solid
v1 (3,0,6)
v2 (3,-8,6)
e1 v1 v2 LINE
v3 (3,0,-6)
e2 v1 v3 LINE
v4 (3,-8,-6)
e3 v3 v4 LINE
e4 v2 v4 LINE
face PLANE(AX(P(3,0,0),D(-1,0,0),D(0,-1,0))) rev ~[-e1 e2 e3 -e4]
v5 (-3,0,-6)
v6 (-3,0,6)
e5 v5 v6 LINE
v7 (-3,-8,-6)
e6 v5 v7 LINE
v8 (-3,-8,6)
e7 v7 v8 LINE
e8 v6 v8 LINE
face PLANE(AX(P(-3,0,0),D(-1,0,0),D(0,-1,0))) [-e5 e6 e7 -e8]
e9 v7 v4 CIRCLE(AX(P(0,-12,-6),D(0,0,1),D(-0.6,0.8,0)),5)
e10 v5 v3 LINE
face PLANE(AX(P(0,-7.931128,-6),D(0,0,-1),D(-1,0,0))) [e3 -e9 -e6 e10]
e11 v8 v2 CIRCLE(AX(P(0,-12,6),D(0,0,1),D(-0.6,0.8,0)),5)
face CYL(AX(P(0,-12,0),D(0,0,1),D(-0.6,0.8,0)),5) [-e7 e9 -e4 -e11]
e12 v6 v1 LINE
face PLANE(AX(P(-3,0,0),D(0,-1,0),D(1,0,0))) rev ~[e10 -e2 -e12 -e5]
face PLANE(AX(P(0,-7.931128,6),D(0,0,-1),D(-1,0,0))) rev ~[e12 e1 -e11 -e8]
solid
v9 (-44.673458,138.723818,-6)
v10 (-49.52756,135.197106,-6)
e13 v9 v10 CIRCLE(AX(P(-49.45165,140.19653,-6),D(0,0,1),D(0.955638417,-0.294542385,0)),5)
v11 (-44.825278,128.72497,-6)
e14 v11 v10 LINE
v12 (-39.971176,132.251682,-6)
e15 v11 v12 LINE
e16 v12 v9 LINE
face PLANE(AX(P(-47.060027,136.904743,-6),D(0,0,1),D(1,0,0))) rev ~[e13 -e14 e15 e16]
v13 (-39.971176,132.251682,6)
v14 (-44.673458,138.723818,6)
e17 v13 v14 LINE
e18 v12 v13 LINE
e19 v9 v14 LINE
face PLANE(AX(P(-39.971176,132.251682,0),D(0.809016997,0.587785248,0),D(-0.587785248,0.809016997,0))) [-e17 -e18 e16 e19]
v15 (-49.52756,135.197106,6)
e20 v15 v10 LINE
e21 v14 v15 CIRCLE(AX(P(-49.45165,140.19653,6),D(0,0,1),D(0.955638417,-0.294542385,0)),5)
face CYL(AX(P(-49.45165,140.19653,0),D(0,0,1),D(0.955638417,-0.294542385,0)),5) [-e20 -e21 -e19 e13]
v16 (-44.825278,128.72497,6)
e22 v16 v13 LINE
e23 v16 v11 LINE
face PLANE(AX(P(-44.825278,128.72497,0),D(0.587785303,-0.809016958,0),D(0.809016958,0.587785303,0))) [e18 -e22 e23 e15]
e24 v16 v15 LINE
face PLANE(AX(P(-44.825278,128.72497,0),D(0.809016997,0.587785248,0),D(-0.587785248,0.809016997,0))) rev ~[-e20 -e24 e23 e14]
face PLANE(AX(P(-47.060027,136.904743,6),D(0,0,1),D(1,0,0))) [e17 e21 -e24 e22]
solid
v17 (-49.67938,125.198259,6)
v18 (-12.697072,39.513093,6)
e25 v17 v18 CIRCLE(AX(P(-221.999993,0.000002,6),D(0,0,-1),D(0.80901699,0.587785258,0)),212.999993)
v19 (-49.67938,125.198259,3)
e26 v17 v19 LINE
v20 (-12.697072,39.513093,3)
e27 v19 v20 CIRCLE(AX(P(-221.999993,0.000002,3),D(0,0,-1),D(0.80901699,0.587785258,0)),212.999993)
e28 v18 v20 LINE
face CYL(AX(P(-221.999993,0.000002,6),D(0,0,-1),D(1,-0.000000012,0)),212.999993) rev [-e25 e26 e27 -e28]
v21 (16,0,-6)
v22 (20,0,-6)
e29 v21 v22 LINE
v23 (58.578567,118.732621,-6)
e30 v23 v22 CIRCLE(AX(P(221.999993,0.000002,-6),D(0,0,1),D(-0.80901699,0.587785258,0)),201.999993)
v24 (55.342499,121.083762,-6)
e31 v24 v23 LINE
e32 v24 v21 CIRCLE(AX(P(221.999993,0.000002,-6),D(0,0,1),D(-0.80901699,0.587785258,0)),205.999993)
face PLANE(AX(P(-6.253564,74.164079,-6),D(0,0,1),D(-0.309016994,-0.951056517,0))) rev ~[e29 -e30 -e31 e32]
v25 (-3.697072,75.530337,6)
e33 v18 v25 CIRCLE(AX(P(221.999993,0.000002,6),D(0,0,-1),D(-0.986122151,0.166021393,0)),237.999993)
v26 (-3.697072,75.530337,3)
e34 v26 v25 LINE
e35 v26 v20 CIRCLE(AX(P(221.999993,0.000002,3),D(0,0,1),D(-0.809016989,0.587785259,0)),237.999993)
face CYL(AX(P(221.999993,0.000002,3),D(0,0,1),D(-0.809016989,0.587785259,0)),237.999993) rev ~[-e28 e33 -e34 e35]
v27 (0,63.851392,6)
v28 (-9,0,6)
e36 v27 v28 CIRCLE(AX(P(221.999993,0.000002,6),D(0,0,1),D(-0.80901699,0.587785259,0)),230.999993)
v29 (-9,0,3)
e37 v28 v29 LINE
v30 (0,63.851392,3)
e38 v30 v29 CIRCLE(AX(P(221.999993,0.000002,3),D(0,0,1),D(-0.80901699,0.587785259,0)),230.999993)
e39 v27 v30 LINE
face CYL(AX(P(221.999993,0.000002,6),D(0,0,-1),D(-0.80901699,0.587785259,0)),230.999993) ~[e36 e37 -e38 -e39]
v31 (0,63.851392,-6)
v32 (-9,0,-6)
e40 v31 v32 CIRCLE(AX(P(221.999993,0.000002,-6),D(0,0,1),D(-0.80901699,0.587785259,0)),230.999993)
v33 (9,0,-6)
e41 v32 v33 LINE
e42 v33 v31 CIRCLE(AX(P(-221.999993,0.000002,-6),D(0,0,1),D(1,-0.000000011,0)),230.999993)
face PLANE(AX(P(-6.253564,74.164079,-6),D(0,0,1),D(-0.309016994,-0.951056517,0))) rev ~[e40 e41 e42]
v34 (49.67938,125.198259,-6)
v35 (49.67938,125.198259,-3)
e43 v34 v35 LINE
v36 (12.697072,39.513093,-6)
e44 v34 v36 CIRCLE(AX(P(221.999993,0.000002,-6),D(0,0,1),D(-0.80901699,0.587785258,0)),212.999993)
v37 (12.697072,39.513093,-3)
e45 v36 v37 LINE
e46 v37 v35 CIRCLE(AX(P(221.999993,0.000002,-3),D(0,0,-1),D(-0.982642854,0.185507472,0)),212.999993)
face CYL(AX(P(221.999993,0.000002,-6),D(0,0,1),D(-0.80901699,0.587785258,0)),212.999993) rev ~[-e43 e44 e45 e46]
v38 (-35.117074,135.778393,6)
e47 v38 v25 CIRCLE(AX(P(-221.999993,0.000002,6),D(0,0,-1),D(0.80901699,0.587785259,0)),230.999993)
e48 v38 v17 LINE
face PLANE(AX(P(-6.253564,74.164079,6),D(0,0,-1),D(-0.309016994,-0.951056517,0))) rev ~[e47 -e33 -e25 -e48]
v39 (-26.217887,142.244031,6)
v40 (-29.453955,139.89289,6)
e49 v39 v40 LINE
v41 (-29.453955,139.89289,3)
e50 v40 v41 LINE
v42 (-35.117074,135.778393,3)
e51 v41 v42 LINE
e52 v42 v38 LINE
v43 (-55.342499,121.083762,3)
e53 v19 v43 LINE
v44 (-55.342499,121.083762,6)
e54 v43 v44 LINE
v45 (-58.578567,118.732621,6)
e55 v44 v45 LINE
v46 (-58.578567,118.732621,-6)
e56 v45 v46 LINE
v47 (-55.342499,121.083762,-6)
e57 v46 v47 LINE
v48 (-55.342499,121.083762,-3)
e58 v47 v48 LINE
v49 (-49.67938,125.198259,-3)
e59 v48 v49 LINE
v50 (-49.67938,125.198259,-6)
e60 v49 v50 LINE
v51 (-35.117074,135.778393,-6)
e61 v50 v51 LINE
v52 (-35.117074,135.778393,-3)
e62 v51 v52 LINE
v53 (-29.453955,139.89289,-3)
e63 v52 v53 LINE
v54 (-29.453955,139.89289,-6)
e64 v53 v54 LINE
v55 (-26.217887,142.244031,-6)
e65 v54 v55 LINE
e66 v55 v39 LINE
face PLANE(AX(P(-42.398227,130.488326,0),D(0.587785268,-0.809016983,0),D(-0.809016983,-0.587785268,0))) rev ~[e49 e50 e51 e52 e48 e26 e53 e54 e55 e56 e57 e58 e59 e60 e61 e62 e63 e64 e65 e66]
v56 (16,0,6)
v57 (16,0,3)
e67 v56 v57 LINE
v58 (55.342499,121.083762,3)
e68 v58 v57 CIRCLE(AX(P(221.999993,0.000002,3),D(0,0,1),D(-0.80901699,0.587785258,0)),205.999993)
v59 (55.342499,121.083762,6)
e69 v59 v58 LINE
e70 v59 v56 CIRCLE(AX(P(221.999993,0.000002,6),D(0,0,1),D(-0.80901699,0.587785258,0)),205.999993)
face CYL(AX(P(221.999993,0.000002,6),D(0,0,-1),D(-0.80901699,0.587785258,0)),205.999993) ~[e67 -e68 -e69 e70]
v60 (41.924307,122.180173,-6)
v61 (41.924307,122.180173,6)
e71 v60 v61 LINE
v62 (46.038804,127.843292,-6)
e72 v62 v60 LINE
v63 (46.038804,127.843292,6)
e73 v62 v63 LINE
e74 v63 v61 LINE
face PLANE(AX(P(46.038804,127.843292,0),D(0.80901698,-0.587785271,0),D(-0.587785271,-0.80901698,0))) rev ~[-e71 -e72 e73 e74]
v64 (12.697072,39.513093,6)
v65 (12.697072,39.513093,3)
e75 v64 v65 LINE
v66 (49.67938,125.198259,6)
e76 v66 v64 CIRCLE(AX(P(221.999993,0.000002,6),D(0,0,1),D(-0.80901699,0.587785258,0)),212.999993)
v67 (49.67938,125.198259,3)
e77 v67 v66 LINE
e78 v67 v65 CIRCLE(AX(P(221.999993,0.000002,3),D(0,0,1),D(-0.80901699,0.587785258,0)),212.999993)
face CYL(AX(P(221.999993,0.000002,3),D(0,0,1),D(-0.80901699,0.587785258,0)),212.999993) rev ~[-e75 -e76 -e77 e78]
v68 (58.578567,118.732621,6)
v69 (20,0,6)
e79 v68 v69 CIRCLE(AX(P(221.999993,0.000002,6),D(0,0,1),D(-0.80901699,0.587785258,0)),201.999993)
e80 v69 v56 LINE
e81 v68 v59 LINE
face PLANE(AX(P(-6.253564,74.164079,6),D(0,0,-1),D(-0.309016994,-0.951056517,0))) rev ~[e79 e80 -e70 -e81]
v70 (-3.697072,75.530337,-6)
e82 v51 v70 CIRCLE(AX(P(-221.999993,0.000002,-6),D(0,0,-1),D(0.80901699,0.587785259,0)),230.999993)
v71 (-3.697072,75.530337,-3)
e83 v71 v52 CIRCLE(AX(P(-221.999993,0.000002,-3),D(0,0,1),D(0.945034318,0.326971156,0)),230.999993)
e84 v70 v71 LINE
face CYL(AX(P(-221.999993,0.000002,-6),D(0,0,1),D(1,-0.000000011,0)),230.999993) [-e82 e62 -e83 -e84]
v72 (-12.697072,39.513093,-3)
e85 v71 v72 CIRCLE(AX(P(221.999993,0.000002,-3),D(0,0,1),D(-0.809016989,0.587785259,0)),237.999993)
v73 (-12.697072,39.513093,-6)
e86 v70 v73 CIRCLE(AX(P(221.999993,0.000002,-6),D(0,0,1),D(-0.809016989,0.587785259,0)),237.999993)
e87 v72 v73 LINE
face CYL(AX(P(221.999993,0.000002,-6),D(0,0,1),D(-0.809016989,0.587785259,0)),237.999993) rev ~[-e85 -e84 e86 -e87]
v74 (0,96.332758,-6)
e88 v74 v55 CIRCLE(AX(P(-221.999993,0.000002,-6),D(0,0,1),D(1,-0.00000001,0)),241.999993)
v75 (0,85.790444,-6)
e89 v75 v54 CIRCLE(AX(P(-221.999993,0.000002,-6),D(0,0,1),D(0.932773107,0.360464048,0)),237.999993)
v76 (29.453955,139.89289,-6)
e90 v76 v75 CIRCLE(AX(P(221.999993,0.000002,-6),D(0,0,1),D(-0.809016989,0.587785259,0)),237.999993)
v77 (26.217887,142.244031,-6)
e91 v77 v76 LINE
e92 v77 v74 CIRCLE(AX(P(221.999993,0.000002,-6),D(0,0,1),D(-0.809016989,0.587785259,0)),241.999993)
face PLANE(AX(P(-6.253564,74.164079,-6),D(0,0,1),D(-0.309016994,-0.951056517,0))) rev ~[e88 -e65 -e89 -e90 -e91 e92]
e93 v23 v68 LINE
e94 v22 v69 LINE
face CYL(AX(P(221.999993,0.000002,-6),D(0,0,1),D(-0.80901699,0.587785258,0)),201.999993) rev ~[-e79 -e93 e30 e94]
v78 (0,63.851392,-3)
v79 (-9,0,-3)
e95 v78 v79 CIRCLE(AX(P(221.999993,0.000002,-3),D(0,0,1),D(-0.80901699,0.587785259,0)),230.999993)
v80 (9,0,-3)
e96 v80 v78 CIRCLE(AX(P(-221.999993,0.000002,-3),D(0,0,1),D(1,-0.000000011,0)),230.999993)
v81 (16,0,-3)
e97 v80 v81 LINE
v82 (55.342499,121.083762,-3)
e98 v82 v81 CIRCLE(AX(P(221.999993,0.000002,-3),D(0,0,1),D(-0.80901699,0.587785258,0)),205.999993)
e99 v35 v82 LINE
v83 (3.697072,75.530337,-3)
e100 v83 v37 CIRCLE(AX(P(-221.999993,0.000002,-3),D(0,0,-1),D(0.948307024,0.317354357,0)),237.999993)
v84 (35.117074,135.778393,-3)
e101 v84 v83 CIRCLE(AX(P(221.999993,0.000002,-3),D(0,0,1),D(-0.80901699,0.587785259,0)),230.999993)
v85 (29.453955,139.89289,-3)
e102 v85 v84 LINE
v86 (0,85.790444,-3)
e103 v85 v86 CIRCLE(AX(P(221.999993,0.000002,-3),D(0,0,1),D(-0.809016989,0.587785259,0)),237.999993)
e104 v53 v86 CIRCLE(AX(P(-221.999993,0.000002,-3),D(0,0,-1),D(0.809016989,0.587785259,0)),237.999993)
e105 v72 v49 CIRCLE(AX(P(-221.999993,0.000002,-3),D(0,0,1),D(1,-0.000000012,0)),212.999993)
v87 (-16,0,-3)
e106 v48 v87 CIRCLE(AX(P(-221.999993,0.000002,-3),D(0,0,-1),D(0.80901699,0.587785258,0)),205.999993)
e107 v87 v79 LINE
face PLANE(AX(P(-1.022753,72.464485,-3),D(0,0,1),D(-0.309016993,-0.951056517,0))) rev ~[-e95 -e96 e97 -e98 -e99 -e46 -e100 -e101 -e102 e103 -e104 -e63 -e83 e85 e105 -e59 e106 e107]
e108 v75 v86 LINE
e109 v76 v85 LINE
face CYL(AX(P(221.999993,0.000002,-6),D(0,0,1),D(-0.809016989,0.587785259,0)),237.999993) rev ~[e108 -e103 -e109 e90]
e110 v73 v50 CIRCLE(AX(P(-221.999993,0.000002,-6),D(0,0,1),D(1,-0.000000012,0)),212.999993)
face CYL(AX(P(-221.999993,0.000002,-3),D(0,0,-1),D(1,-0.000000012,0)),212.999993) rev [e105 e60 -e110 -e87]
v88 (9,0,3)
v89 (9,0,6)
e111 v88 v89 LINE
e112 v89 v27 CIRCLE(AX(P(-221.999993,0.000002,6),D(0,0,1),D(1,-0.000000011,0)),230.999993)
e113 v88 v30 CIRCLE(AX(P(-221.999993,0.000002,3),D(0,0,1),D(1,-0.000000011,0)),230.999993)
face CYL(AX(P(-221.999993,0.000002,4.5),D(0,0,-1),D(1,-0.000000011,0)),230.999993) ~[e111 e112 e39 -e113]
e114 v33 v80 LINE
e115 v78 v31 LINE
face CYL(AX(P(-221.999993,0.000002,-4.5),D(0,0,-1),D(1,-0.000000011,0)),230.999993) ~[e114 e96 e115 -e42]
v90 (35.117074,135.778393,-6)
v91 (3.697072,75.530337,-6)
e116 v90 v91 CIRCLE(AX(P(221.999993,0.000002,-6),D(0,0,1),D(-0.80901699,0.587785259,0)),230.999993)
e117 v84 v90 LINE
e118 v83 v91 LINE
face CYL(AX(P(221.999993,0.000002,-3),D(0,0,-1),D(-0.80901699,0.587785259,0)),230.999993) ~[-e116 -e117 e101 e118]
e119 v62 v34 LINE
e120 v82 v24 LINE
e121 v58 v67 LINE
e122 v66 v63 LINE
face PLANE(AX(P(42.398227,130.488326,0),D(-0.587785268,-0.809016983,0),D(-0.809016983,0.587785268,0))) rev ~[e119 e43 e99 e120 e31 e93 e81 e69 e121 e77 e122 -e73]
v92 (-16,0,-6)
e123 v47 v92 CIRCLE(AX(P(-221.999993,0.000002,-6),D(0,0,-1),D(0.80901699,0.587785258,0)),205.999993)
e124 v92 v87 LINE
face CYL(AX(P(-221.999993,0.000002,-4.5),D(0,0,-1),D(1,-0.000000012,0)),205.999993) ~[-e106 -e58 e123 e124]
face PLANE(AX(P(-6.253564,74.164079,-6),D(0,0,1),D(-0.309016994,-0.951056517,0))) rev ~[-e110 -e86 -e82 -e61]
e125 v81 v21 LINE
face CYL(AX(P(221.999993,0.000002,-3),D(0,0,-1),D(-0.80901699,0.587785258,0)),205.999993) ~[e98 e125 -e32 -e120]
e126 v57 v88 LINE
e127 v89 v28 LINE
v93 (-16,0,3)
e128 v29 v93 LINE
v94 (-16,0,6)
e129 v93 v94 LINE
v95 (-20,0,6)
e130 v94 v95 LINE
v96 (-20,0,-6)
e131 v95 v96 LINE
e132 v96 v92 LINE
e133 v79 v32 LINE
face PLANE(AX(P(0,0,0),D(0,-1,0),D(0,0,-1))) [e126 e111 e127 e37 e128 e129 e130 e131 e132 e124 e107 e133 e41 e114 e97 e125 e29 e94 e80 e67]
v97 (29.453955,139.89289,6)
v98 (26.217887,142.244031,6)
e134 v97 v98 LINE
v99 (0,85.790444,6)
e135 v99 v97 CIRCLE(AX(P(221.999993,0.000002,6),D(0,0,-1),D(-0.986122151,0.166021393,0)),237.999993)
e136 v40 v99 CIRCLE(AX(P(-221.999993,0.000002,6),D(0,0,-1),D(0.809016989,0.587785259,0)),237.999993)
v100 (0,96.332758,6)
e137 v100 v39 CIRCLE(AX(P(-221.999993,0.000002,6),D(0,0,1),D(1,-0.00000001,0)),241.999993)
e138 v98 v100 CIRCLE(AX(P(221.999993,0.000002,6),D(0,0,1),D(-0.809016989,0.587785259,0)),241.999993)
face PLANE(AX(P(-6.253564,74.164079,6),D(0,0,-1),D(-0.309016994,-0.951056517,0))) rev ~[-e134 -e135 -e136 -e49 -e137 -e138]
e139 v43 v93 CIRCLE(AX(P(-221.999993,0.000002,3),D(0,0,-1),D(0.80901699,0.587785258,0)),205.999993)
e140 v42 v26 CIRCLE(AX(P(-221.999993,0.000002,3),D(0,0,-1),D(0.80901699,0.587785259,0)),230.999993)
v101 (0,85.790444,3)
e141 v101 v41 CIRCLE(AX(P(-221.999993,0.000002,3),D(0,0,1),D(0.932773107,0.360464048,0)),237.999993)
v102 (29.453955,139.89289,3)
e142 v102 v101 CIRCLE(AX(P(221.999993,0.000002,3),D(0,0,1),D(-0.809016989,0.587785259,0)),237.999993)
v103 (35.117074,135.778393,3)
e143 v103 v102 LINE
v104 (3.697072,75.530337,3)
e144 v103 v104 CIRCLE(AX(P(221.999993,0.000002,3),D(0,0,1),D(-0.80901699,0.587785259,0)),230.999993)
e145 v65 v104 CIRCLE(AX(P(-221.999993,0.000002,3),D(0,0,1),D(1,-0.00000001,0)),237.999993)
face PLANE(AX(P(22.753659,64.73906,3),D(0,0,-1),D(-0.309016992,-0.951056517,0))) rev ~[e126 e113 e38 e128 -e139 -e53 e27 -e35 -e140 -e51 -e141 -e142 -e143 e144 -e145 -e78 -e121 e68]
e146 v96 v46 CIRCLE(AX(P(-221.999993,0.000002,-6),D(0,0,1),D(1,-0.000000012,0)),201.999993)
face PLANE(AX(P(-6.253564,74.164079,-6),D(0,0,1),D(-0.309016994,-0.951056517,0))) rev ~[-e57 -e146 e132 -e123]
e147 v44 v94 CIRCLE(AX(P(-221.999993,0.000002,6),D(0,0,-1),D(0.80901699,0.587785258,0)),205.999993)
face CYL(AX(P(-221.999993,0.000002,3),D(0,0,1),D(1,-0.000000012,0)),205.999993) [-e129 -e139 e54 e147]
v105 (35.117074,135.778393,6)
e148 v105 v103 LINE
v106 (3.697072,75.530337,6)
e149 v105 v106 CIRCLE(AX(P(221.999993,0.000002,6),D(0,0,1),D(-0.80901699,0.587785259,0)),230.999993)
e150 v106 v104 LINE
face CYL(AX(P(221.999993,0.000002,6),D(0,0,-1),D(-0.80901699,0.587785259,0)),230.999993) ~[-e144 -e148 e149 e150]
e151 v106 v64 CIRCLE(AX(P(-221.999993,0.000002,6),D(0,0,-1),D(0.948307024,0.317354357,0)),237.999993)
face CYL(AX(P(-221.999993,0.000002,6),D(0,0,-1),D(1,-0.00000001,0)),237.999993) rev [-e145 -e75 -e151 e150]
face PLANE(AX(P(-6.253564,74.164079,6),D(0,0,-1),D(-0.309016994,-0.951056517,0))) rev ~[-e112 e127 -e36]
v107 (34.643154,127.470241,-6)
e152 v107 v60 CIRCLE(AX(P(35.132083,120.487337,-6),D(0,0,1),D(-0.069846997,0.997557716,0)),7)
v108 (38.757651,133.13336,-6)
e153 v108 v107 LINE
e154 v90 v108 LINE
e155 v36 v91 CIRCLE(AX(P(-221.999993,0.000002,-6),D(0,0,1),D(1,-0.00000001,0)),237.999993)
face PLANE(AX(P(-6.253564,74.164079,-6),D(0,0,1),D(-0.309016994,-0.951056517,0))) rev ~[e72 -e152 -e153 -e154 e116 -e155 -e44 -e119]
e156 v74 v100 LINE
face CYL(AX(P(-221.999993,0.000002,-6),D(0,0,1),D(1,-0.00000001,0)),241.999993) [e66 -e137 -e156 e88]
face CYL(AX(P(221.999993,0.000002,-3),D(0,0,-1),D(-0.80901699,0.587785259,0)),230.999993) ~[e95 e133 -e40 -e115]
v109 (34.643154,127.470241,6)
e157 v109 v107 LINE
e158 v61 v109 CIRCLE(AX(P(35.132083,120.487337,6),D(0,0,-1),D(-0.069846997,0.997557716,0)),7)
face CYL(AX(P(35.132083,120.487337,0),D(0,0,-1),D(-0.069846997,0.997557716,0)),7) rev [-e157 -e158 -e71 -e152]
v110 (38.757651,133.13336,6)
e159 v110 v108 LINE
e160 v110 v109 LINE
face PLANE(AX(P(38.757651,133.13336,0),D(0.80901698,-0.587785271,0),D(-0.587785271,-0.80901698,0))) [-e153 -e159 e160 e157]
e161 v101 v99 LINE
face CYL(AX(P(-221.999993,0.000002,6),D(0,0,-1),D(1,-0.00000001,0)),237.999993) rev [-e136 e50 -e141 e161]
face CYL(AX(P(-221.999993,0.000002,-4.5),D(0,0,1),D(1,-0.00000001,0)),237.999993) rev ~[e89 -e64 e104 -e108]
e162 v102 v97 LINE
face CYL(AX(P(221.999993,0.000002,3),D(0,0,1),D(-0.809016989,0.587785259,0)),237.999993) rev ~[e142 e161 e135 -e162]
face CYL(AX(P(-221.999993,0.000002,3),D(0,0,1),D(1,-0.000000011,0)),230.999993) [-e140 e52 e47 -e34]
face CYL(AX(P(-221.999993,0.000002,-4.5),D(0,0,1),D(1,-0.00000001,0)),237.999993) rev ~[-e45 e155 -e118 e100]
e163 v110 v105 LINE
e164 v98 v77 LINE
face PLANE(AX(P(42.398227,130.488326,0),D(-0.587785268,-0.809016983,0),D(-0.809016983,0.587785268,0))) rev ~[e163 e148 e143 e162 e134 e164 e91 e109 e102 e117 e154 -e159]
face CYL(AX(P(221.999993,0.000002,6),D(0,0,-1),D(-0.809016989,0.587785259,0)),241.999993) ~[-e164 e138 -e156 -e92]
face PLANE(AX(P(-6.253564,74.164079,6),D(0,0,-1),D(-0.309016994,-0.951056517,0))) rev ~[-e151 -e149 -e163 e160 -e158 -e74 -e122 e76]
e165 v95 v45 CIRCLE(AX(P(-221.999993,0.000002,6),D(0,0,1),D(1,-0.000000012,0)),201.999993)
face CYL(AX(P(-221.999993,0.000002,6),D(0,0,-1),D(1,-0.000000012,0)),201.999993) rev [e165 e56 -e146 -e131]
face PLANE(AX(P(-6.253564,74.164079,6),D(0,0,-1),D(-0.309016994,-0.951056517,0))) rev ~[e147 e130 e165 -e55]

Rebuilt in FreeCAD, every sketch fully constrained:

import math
import FreeCAD as App
import Part
import Sketcher
Q = App.Units.Quantity


def add_polygon(sketch, points):
    """Adds a closed chain of lines whose ends are joined by coincident constraints."""
    first, n = sketch.GeometryCount, len(points)
    for a, b in zip(points, points[1:] + points[:1]):
        sketch.addGeometry(Part.LineSegment(App.Vector(*a, 0), App.Vector(*b, 0)), False)
    for i in range(n):
        sketch.addConstraint(Sketcher.Constraint("Coincident", first + i, 2, first + (i + 1) % n, 1))

doc = App.newDocument("Part")
body = doc.addObject("PartDesign::Body", "Body")

sketch1 = doc.addObject("Sketcher::SketchObject", "Sketch")
body.addObject(sketch1)
sketch1.AttachmentSupport = (doc.XZ_Plane, [""])
sketch1.MapMode = "FlatFace"
add_polygon(sketch1, [(-20, 6), (-20, -6), (-16, -6), (-16, -3), (-9, -3), (-9, -6), (9, -6), (9, -3), (16, -3), (16, -6), (20, -6), (20, 6), (16, 6), (16, 3), (9, 3), (9, 6), (-9, 6), (-9, 3), (-16, 3), (-16, 6)])
sketch1.addConstraint(Sketcher.Constraint("Vertical", 0))
sketch1.addConstraint(Sketcher.Constraint("Horizontal", 1))
sketch1.addConstraint(Sketcher.Constraint("Vertical", 2))
sketch1.addConstraint(Sketcher.Constraint("Horizontal", 3))
sketch1.addConstraint(Sketcher.Constraint("Vertical", 4))
sketch1.addConstraint(Sketcher.Constraint("Horizontal", 5))
sketch1.addConstraint(Sketcher.Constraint("Vertical", 6))
sketch1.addConstraint(Sketcher.Constraint("Horizontal", 7))
sketch1.addConstraint(Sketcher.Constraint("Vertical", 8))
sketch1.addConstraint(Sketcher.Constraint("Horizontal", 9))
sketch1.addConstraint(Sketcher.Constraint("Vertical", 10))
sketch1.addConstraint(Sketcher.Constraint("Horizontal", 11))
sketch1.addConstraint(Sketcher.Constraint("Vertical", 12))
sketch1.addConstraint(Sketcher.Constraint("Horizontal", 13))
sketch1.addConstraint(Sketcher.Constraint("Vertical", 14))
sketch1.addConstraint(Sketcher.Constraint("Horizontal", 15))
sketch1.addConstraint(Sketcher.Constraint("Vertical", 16))
sketch1.addConstraint(Sketcher.Constraint("Horizontal", 17))
sketch1.addConstraint(Sketcher.Constraint("Vertical", 18))
sketch1.addConstraint(Sketcher.Constraint("Horizontal", 19))
sketch1.addConstraint(Sketcher.Constraint("Symmetric", 0, 2, 10, 2, -1, 1))
sketch1.addConstraint(Sketcher.Constraint("Symmetric", 2, 2, 12, 2, -1, 1))
sketch1.addConstraint(Sketcher.Constraint("Symmetric", 4, 2, 14, 2, -1, 1))
sketch1.addConstraint(Sketcher.Constraint("Symmetric", 6, 2, 16, 2, -1, 1))
sketch1.addConstraint(Sketcher.Constraint("Symmetric", 8, 2, 18, 2, -1, 1))
sketch1.addConstraint(Sketcher.Constraint("Symmetric", 3, 2, 6, 2, -2))
sketch1.addConstraint(Sketcher.Constraint("Symmetric", 1, 2, 8, 2, -2))
sketch1.addConstraint(Sketcher.Constraint("Horizontal", 1, 2, 4, 2))
sketch1.addConstraint(Sketcher.Constraint("DistanceX", 1, 1, 1, 2, Q("4 mm")))
sketch1.addConstraint(Sketcher.Constraint("DistanceX", 3, 1, 3, 2, Q("7 mm")))
sketch1.addConstraint(Sketcher.Constraint("DistanceX", 5, 1, 5, 2, Q("18 mm")))
sketch1.addConstraint(Sketcher.Constraint("DistanceY", 0, 2, 0, 1, Q("12 mm")))
sketch1.addConstraint(Sketcher.Constraint("DistanceY", 2, 1, 2, 2, Q("3 mm")))

sketch2 = doc.addObject("Sketcher::SketchObject", "Sketch001")
body.addObject(sketch2)
sketch2.AttachmentSupport = (doc.XY_Plane, [""])
sketch2.MapMode = "FlatFace"
sketch2.addGeometry(Part.ArcOfCircle(Part.Circle(App.Vector(-222, 0, 0), App.Vector(0, 0, 1), 222), math.radians(0), math.radians(36)), False)
sketch2.addConstraint(Sketcher.Constraint("Coincident", 0, 1, -1, 1))
sketch2.addConstraint(Sketcher.Constraint("Radius", 0, Q("221.999993 mm")))
sketch2.addConstraint(Sketcher.Constraint("DistanceX", 0, 2, -1, 1, Q("42.398227 mm")))
sketch2.addConstraint(Sketcher.Constraint("DistanceY", -1, 1, 0, 2, Q("130.488326 mm")))
doc.recompute()

additivepipe = doc.addObject("PartDesign::AdditivePipe", "AdditivePipe")
body.addObject(additivepipe)
additivepipe.Profile = sketch1
additivepipe.Spine = (sketch2, ["Edge1"])

sketch3 = doc.addObject("Sketcher::SketchObject", "Sketch002")
body.addObject(sketch3)
sketch3.AttachmentSupport = (doc.XZ_Plane, [""])
sketch3.MapMode = "FlatFace"
add_polygon(sketch3, [(-20, 6), (-20, -6), (-16, -6), (-16, -3), (-9, -3), (-9, -6), (9, -6), (9, -3), (16, -3), (16, -6), (20, -6), (20, 6), (16, 6), (16, 3), (9, 3), (9, 6), (-9, 6), (-9, 3), (-16, 3), (-16, 6)])
sketch3.addConstraint(Sketcher.Constraint("Vertical", 0))
sketch3.addConstraint(Sketcher.Constraint("Horizontal", 1))
sketch3.addConstraint(Sketcher.Constraint("Vertical", 2))
sketch3.addConstraint(Sketcher.Constraint("Horizontal", 3))
sketch3.addConstraint(Sketcher.Constraint("Vertical", 4))
sketch3.addConstraint(Sketcher.Constraint("Horizontal", 5))
sketch3.addConstraint(Sketcher.Constraint("Vertical", 6))
sketch3.addConstraint(Sketcher.Constraint("Horizontal", 7))
sketch3.addConstraint(Sketcher.Constraint("Vertical", 8))
sketch3.addConstraint(Sketcher.Constraint("Horizontal", 9))
sketch3.addConstraint(Sketcher.Constraint("Vertical", 10))
sketch3.addConstraint(Sketcher.Constraint("Horizontal", 11))
sketch3.addConstraint(Sketcher.Constraint("Vertical", 12))
sketch3.addConstraint(Sketcher.Constraint("Horizontal", 13))
sketch3.addConstraint(Sketcher.Constraint("Vertical", 14))
sketch3.addConstraint(Sketcher.Constraint("Horizontal", 15))
sketch3.addConstraint(Sketcher.Constraint("Vertical", 16))
sketch3.addConstraint(Sketcher.Constraint("Horizontal", 17))
sketch3.addConstraint(Sketcher.Constraint("Vertical", 18))
sketch3.addConstraint(Sketcher.Constraint("Horizontal", 19))
sketch3.addConstraint(Sketcher.Constraint("Symmetric", 0, 2, 10, 2, -1, 1))
sketch3.addConstraint(Sketcher.Constraint("Symmetric", 2, 2, 12, 2, -1, 1))
sketch3.addConstraint(Sketcher.Constraint("Symmetric", 4, 2, 14, 2, -1, 1))
sketch3.addConstraint(Sketcher.Constraint("Symmetric", 6, 2, 16, 2, -1, 1))
sketch3.addConstraint(Sketcher.Constraint("Symmetric", 8, 2, 18, 2, -1, 1))
sketch3.addConstraint(Sketcher.Constraint("Symmetric", 3, 2, 6, 2, -2))
sketch3.addConstraint(Sketcher.Constraint("Symmetric", 1, 2, 8, 2, -2))
sketch3.addConstraint(Sketcher.Constraint("Horizontal", 1, 2, 4, 2))
sketch3.addConstraint(Sketcher.Constraint("DistanceX", 1, 1, 1, 2, Q("4 mm")))
sketch3.addConstraint(Sketcher.Constraint("DistanceX", 3, 1, 3, 2, Q("7 mm")))
sketch3.addConstraint(Sketcher.Constraint("DistanceX", 5, 1, 5, 2, Q("18 mm")))
sketch3.addConstraint(Sketcher.Constraint("DistanceY", 0, 2, 0, 1, Q("12 mm")))
sketch3.addConstraint(Sketcher.Constraint("DistanceY", 2, 1, 2, 2, Q("3 mm")))

sketch4 = doc.addObject("Sketcher::SketchObject", "Sketch003")
body.addObject(sketch4)
sketch4.AttachmentSupport = (doc.XY_Plane, [""])
sketch4.MapMode = "FlatFace"
sketch4.addGeometry(Part.ArcOfCircle(Part.Circle(App.Vector(222, 0, 0), App.Vector(0, 0, 1), 222), math.radians(144), math.radians(180)), False)
sketch4.addConstraint(Sketcher.Constraint("Coincident", 0, 2, -1, 1))
sketch4.addConstraint(Sketcher.Constraint("Radius", 0, Q("221.999993 mm")))
sketch4.addConstraint(Sketcher.Constraint("DistanceX", -1, 1, 0, 1, Q("42.398227 mm")))
sketch4.addConstraint(Sketcher.Constraint("DistanceY", -1, 1, 0, 1, Q("130.488326 mm")))
doc.recompute()

additivepipe2 = doc.addObject("PartDesign::AdditivePipe", "AdditivePipe001")
body.addObject(additivepipe2)
additivepipe2.Profile = sketch3
additivepipe2.Spine = (sketch4, ["Edge1"])

sketch5 = doc.addObject("Sketcher::SketchObject", "Sketch004")
body.addObject(sketch5)
sketch5.AttachmentSupport = (doc.XZ_Plane, [""])
sketch5.MapMode = "FlatFace"
add_polygon(sketch5, [(-16, 6), (-16, 3), (-9, 3), (-9, 6)])
sketch5.addConstraint(Sketcher.Constraint("Vertical", 0))
sketch5.addConstraint(Sketcher.Constraint("Horizontal", 1))
sketch5.addConstraint(Sketcher.Constraint("Vertical", 2))
sketch5.addConstraint(Sketcher.Constraint("Horizontal", 3))
sketch5.addConstraint(Sketcher.Constraint("DistanceX", 1, 1, 1, 2, Q("7 mm")))
sketch5.addConstraint(Sketcher.Constraint("DistanceY", 0, 2, 0, 1, Q("3 mm")))
sketch5.addConstraint(Sketcher.Constraint("DistanceX", 0, 2, -1, 1, Q("16 mm")))
sketch5.addConstraint(Sketcher.Constraint("DistanceY", -1, 1, 0, 2, Q("3 mm")))

sketch6 = doc.addObject("Sketcher::SketchObject", "Sketch005")
body.addObject(sketch6)
sketch6.AttachmentSupport = (doc.XY_Plane, [""])
sketch6.MapMode = "FlatFace"
sketch6.addGeometry(Part.ArcOfCircle(Part.Circle(App.Vector(-222, 0, 0), App.Vector(0, 0, 1), 222), math.radians(0), math.radians(36)), False)
sketch6.addConstraint(Sketcher.Constraint("Coincident", 0, 1, -1, 1))
sketch6.addConstraint(Sketcher.Constraint("Radius", 0, Q("221.999993 mm")))
sketch6.addConstraint(Sketcher.Constraint("DistanceX", 0, 2, -1, 1, Q("42.398227 mm")))
sketch6.addConstraint(Sketcher.Constraint("DistanceY", -1, 1, 0, 2, Q("130.488326 mm")))
doc.recompute()

subtractivepipe = doc.addObject("PartDesign::SubtractivePipe", "SubtractivePipe")
body.addObject(subtractivepipe)
subtractivepipe.Profile = sketch5
subtractivepipe.Spine = (sketch6, ["Edge1"])

sketch7 = doc.addObject("Sketcher::SketchObject", "Sketch006")
body.addObject(sketch7)
sketch7.AttachmentSupport = (doc.XZ_Plane, [""])
sketch7.MapMode = "FlatFace"
add_polygon(sketch7, [(-16, 6), (-16, 3), (-9, 3), (-9, 6)])
sketch7.addConstraint(Sketcher.Constraint("Vertical", 0))
sketch7.addConstraint(Sketcher.Constraint("Horizontal", 1))
sketch7.addConstraint(Sketcher.Constraint("Vertical", 2))
sketch7.addConstraint(Sketcher.Constraint("Horizontal", 3))
sketch7.addConstraint(Sketcher.Constraint("DistanceX", 1, 1, 1, 2, Q("7 mm")))
sketch7.addConstraint(Sketcher.Constraint("DistanceY", 0, 2, 0, 1, Q("3 mm")))
sketch7.addConstraint(Sketcher.Constraint("DistanceX", 0, 2, -1, 1, Q("16 mm")))
sketch7.addConstraint(Sketcher.Constraint("DistanceY", -1, 1, 0, 2, Q("3 mm")))

sketch8 = doc.addObject("Sketcher::SketchObject", "Sketch007")
body.addObject(sketch8)
sketch8.AttachmentSupport = (doc.XY_Plane, [""])
sketch8.MapMode = "FlatFace"
sketch8.addGeometry(Part.ArcOfCircle(Part.Circle(App.Vector(222, 0, 0), App.Vector(0, 0, 1), 222), math.radians(144), math.radians(180)), False)
sketch8.addConstraint(Sketcher.Constraint("Coincident", 0, 2, -1, 1))
sketch8.addConstraint(Sketcher.Constraint("Radius", 0, Q("221.999993 mm")))
sketch8.addConstraint(Sketcher.Constraint("DistanceX", -1, 1, 0, 1, Q("42.398227 mm")))
sketch8.addConstraint(Sketcher.Constraint("DistanceY", -1, 1, 0, 1, Q("130.488326 mm")))
doc.recompute()

subtractivepipe2 = doc.addObject("PartDesign::SubtractivePipe", "SubtractivePipe001")
body.addObject(subtractivepipe2)
subtractivepipe2.Profile = sketch7
subtractivepipe2.Spine = (sketch8, ["Edge1"])

sketch9 = doc.addObject("Sketcher::SketchObject", "Sketch008")
body.addObject(sketch9)
sketch9.AttachmentSupport = (doc.XZ_Plane, [""])
sketch9.MapMode = "FlatFace"
add_polygon(sketch9, [(9, 6), (9, 3), (16, 3), (16, 6)])
sketch9.addConstraint(Sketcher.Constraint("Vertical", 0))
sketch9.addConstraint(Sketcher.Constraint("Horizontal", 1))
sketch9.addConstraint(Sketcher.Constraint("Vertical", 2))
sketch9.addConstraint(Sketcher.Constraint("Horizontal", 3))
sketch9.addConstraint(Sketcher.Constraint("DistanceX", 1, 1, 1, 2, Q("7 mm")))
sketch9.addConstraint(Sketcher.Constraint("DistanceY", 0, 2, 0, 1, Q("3 mm")))
sketch9.addConstraint(Sketcher.Constraint("DistanceX", -1, 1, 0, 2, Q("9 mm")))
sketch9.addConstraint(Sketcher.Constraint("DistanceY", -1, 1, 0, 2, Q("3 mm")))

sketch10 = doc.addObject("Sketcher::SketchObject", "Sketch009")
body.addObject(sketch10)
sketch10.AttachmentSupport = (doc.XY_Plane, [""])
sketch10.MapMode = "FlatFace"
sketch10.addGeometry(Part.ArcOfCircle(Part.Circle(App.Vector(-222, 0, 0), App.Vector(0, 0, 1), 222), math.radians(0), math.radians(36)), False)
sketch10.addConstraint(Sketcher.Constraint("Coincident", 0, 1, -1, 1))
sketch10.addConstraint(Sketcher.Constraint("Radius", 0, Q("221.999993 mm")))
sketch10.addConstraint(Sketcher.Constraint("DistanceX", 0, 2, -1, 1, Q("42.398227 mm")))
sketch10.addConstraint(Sketcher.Constraint("DistanceY", -1, 1, 0, 2, Q("130.488326 mm")))
doc.recompute()

subtractivepipe3 = doc.addObject("PartDesign::SubtractivePipe", "SubtractivePipe002")
body.addObject(subtractivepipe3)
subtractivepipe3.Profile = sketch9
subtractivepipe3.Spine = (sketch10, ["Edge1"])

sketch11 = doc.addObject("Sketcher::SketchObject", "Sketch010")
body.addObject(sketch11)
sketch11.AttachmentSupport = (doc.XZ_Plane, [""])
sketch11.MapMode = "FlatFace"
add_polygon(sketch11, [(9, 6), (9, 3), (16, 3), (16, 6)])
sketch11.addConstraint(Sketcher.Constraint("Vertical", 0))
sketch11.addConstraint(Sketcher.Constraint("Horizontal", 1))
sketch11.addConstraint(Sketcher.Constraint("Vertical", 2))
sketch11.addConstraint(Sketcher.Constraint("Horizontal", 3))
sketch11.addConstraint(Sketcher.Constraint("DistanceX", 1, 1, 1, 2, Q("7 mm")))
sketch11.addConstraint(Sketcher.Constraint("DistanceY", 0, 2, 0, 1, Q("3 mm")))
sketch11.addConstraint(Sketcher.Constraint("DistanceX", -1, 1, 0, 2, Q("9 mm")))
sketch11.addConstraint(Sketcher.Constraint("DistanceY", -1, 1, 0, 2, Q("3 mm")))

sketch12 = doc.addObject("Sketcher::SketchObject", "Sketch011")
body.addObject(sketch12)
sketch12.AttachmentSupport = (doc.XY_Plane, [""])
sketch12.MapMode = "FlatFace"
sketch12.addGeometry(Part.ArcOfCircle(Part.Circle(App.Vector(222, 0, 0), App.Vector(0, 0, 1), 222), math.radians(144), math.radians(180)), False)
sketch12.addConstraint(Sketcher.Constraint("Coincident", 0, 2, -1, 1))
sketch12.addConstraint(Sketcher.Constraint("Radius", 0, Q("221.999993 mm")))
sketch12.addConstraint(Sketcher.Constraint("DistanceX", -1, 1, 0, 1, Q("42.398227 mm")))
sketch12.addConstraint(Sketcher.Constraint("DistanceY", -1, 1, 0, 1, Q("130.488326 mm")))
doc.recompute()

subtractivepipe4 = doc.addObject("PartDesign::SubtractivePipe", "SubtractivePipe003")
body.addObject(subtractivepipe4)
subtractivepipe4.Profile = sketch11
subtractivepipe4.Spine = (sketch12, ["Edge1"])

sketch13 = doc.addObject("Sketcher::SketchObject", "Sketch012")
body.addObject(sketch13)
sketch13.AttachmentSupport = (doc.XZ_Plane, [""])
sketch13.MapMode = "FlatFace"
add_polygon(sketch13, [(-16, -3), (-16, -6), (-9, -6), (-9, -3)])
sketch13.addConstraint(Sketcher.Constraint("Vertical", 0))
sketch13.addConstraint(Sketcher.Constraint("Horizontal", 1))
sketch13.addConstraint(Sketcher.Constraint("Vertical", 2))
sketch13.addConstraint(Sketcher.Constraint("Horizontal", 3))
sketch13.addConstraint(Sketcher.Constraint("DistanceX", 1, 1, 1, 2, Q("7 mm")))
sketch13.addConstraint(Sketcher.Constraint("DistanceY", 0, 2, 0, 1, Q("3 mm")))
sketch13.addConstraint(Sketcher.Constraint("DistanceX", 0, 2, -1, 1, Q("16 mm")))
sketch13.addConstraint(Sketcher.Constraint("DistanceY", 0, 2, -1, 1, Q("6 mm")))

sketch14 = doc.addObject("Sketcher::SketchObject", "Sketch013")
body.addObject(sketch14)
sketch14.AttachmentSupport = (doc.XY_Plane, [""])
sketch14.MapMode = "FlatFace"
sketch14.addGeometry(Part.ArcOfCircle(Part.Circle(App.Vector(-222, 0, 0), App.Vector(0, 0, 1), 222), math.radians(0), math.radians(36)), False)
sketch14.addConstraint(Sketcher.Constraint("Coincident", 0, 1, -1, 1))
sketch14.addConstraint(Sketcher.Constraint("Radius", 0, Q("221.999993 mm")))
sketch14.addConstraint(Sketcher.Constraint("DistanceX", 0, 2, -1, 1, Q("42.398227 mm")))
sketch14.addConstraint(Sketcher.Constraint("DistanceY", -1, 1, 0, 2, Q("130.488326 mm")))
doc.recompute()

subtractivepipe5 = doc.addObject("PartDesign::SubtractivePipe", "SubtractivePipe004")
body.addObject(subtractivepipe5)
subtractivepipe5.Profile = sketch13
subtractivepipe5.Spine = (sketch14, ["Edge1"])

sketch15 = doc.addObject("Sketcher::SketchObject", "Sketch014")
body.addObject(sketch15)
sketch15.AttachmentSupport = (doc.XZ_Plane, [""])
sketch15.MapMode = "FlatFace"
add_polygon(sketch15, [(-16, -3), (-16, -6), (-9, -6), (-9, -3)])
sketch15.addConstraint(Sketcher.Constraint("Vertical", 0))
sketch15.addConstraint(Sketcher.Constraint("Horizontal", 1))
sketch15.addConstraint(Sketcher.Constraint("Vertical", 2))
sketch15.addConstraint(Sketcher.Constraint("Horizontal", 3))
sketch15.addConstraint(Sketcher.Constraint("DistanceX", 1, 1, 1, 2, Q("7 mm")))
sketch15.addConstraint(Sketcher.Constraint("DistanceY", 0, 2, 0, 1, Q("3 mm")))
sketch15.addConstraint(Sketcher.Constraint("DistanceX", 0, 2, -1, 1, Q("16 mm")))
sketch15.addConstraint(Sketcher.Constraint("DistanceY", 0, 2, -1, 1, Q("6 mm")))

sketch16 = doc.addObject("Sketcher::SketchObject", "Sketch015")
body.addObject(sketch16)
sketch16.AttachmentSupport = (doc.XY_Plane, [""])
sketch16.MapMode = "FlatFace"
sketch16.addGeometry(Part.ArcOfCircle(Part.Circle(App.Vector(222, 0, 0), App.Vector(0, 0, 1), 222), math.radians(144), math.radians(180)), False)
sketch16.addConstraint(Sketcher.Constraint("Coincident", 0, 2, -1, 1))
sketch16.addConstraint(Sketcher.Constraint("Radius", 0, Q("221.999993 mm")))
sketch16.addConstraint(Sketcher.Constraint("DistanceX", -1, 1, 0, 1, Q("42.398227 mm")))
sketch16.addConstraint(Sketcher.Constraint("DistanceY", -1, 1, 0, 1, Q("130.488326 mm")))
doc.recompute()

subtractivepipe6 = doc.addObject("PartDesign::SubtractivePipe", "SubtractivePipe005")
body.addObject(subtractivepipe6)
subtractivepipe6.Profile = sketch15
subtractivepipe6.Spine = (sketch16, ["Edge1"])

sketch17 = doc.addObject("Sketcher::SketchObject", "Sketch016")
body.addObject(sketch17)
sketch17.AttachmentSupport = (doc.XZ_Plane, [""])
sketch17.MapMode = "FlatFace"
add_polygon(sketch17, [(9, -3), (9, -6), (16, -6), (16, -3)])
sketch17.addConstraint(Sketcher.Constraint("Vertical", 0))
sketch17.addConstraint(Sketcher.Constraint("Horizontal", 1))
sketch17.addConstraint(Sketcher.Constraint("Vertical", 2))
sketch17.addConstraint(Sketcher.Constraint("Horizontal", 3))
sketch17.addConstraint(Sketcher.Constraint("DistanceX", 1, 1, 1, 2, Q("7 mm")))
sketch17.addConstraint(Sketcher.Constraint("DistanceY", 0, 2, 0, 1, Q("3 mm")))
sketch17.addConstraint(Sketcher.Constraint("DistanceX", -1, 1, 0, 2, Q("9 mm")))
sketch17.addConstraint(Sketcher.Constraint("DistanceY", 0, 2, -1, 1, Q("6 mm")))

sketch18 = doc.addObject("Sketcher::SketchObject", "Sketch017")
body.addObject(sketch18)
sketch18.AttachmentSupport = (doc.XY_Plane, [""])
sketch18.MapMode = "FlatFace"
sketch18.addGeometry(Part.ArcOfCircle(Part.Circle(App.Vector(-222, 0, 0), App.Vector(0, 0, 1), 222), math.radians(0), math.radians(36)), False)
sketch18.addConstraint(Sketcher.Constraint("Coincident", 0, 1, -1, 1))
sketch18.addConstraint(Sketcher.Constraint("Radius", 0, Q("221.999993 mm")))
sketch18.addConstraint(Sketcher.Constraint("DistanceX", 0, 2, -1, 1, Q("42.398227 mm")))
sketch18.addConstraint(Sketcher.Constraint("DistanceY", -1, 1, 0, 2, Q("130.488326 mm")))
doc.recompute()

subtractivepipe7 = doc.addObject("PartDesign::SubtractivePipe", "SubtractivePipe006")
body.addObject(subtractivepipe7)
subtractivepipe7.Profile = sketch17
subtractivepipe7.Spine = (sketch18, ["Edge1"])

sketch19 = doc.addObject("Sketcher::SketchObject", "Sketch018")
body.addObject(sketch19)
sketch19.AttachmentSupport = (doc.XZ_Plane, [""])
sketch19.MapMode = "FlatFace"
add_polygon(sketch19, [(9, -3), (9, -6), (16, -6), (16, -3)])
sketch19.addConstraint(Sketcher.Constraint("Vertical", 0))
sketch19.addConstraint(Sketcher.Constraint("Horizontal", 1))
sketch19.addConstraint(Sketcher.Constraint("Vertical", 2))
sketch19.addConstraint(Sketcher.Constraint("Horizontal", 3))
sketch19.addConstraint(Sketcher.Constraint("DistanceX", 1, 1, 1, 2, Q("7 mm")))
sketch19.addConstraint(Sketcher.Constraint("DistanceY", 0, 2, 0, 1, Q("3 mm")))
sketch19.addConstraint(Sketcher.Constraint("DistanceX", -1, 1, 0, 2, Q("9 mm")))
sketch19.addConstraint(Sketcher.Constraint("DistanceY", 0, 2, -1, 1, Q("6 mm")))

sketch20 = doc.addObject("Sketcher::SketchObject", "Sketch019")
body.addObject(sketch20)
sketch20.AttachmentSupport = (doc.XY_Plane, [""])
sketch20.MapMode = "FlatFace"
sketch20.addGeometry(Part.ArcOfCircle(Part.Circle(App.Vector(222, 0, 0), App.Vector(0, 0, 1), 222), math.radians(144), math.radians(180)), False)
sketch20.addConstraint(Sketcher.Constraint("Coincident", 0, 2, -1, 1))
sketch20.addConstraint(Sketcher.Constraint("Radius", 0, Q("221.999993 mm")))
sketch20.addConstraint(Sketcher.Constraint("DistanceX", -1, 1, 0, 1, Q("42.398227 mm")))
sketch20.addConstraint(Sketcher.Constraint("DistanceY", -1, 1, 0, 1, Q("130.488326 mm")))
doc.recompute()

subtractivepipe8 = doc.addObject("PartDesign::SubtractivePipe", "SubtractivePipe007")
body.addObject(subtractivepipe8)
subtractivepipe8.Profile = sketch19
subtractivepipe8.Spine = (sketch20, ["Edge1"])

sketch21 = doc.addObject("Sketcher::SketchObject", "Sketch020")
body.addObject(sketch21)
sketch21.AttachmentSupport = (doc.XY_Plane, [""])
sketch21.MapMode = "FlatFace"
sketch21.addGeometry(Part.LineSegment(App.Vector(46, 128, 0), App.Vector(39, 133, 0)), False)
sketch21.addGeometry(Part.LineSegment(App.Vector(39, 133, 0), App.Vector(35, 127, 0)), False)
sketch21.addGeometry(Part.ArcOfCircle(Part.Circle(App.Vector(35, 120, 0), App.Vector(0, 0, 1), 7), math.radians(94), math.radians(374)), False)
sketch21.addGeometry(Part.LineSegment(App.Vector(42, 122, 0), App.Vector(46, 128, 0)), False)
sketch21.addConstraint(Sketcher.Constraint("Coincident", 0, 2, 1, 1))
sketch21.addConstraint(Sketcher.Constraint("Coincident", 1, 2, 2, 1))
sketch21.addConstraint(Sketcher.Constraint("Coincident", 2, 2, 3, 1))
sketch21.addConstraint(Sketcher.Constraint("Coincident", 3, 2, 0, 1))
sketch21.addConstraint(Sketcher.Constraint("Perpendicular", 0, 1))
sketch21.addConstraint(Sketcher.Constraint("Parallel", 1, 3))
sketch21.addConstraint(Sketcher.Constraint("Equal", 1, 3))
sketch21.addConstraint(Sketcher.Constraint("Radius", 2, Q("7 mm")))
sketch21.addConstraint(Sketcher.Constraint("Angle", 0, Q("143.999996 deg")))
sketch21.addConstraint(Sketcher.Constraint("Distance", 0, Q("9 mm")))
sketch21.addConstraint(Sketcher.Constraint("Distance", 1, Q("7 mm")))
sketch21.addConstraint(Sketcher.Constraint("DistanceX", -1, 1, 0, 2, Q("38.757651 mm")))
sketch21.addConstraint(Sketcher.Constraint("DistanceY", -1, 1, 0, 2, Q("133.13336 mm")))
pocket1 = doc.addObject("PartDesign::Pocket", "Pocket")
body.addObject(pocket1)
pocket1.Profile = sketch21
pocket1.Type = "ThroughAll"
pocket1.Midplane = True
body2 = doc.addObject("PartDesign::Body", "Body001")

sketch22 = doc.addObject("Sketcher::SketchObject", "Sketch021")
body2.addObject(sketch22)
sketch22.AttachmentSupport = (doc.getObject("XY_Plane001"), [""])
sketch22.MapMode = "FlatFace"
sketch22.addGeometry(Part.LineSegment(App.Vector(3, 0, 0), App.Vector(-3, 0, 0)), False)
sketch22.addGeometry(Part.LineSegment(App.Vector(-3, 0, 0), App.Vector(-3, -8, 0)), False)
sketch22.addGeometry(Part.ArcOfCircle(Part.Circle(App.Vector(0, -12, 0), App.Vector(0, 0, 1), 5), math.radians(127), math.radians(413)), False)
sketch22.addGeometry(Part.LineSegment(App.Vector(3, -8, 0), App.Vector(3, 0, 0)), False)
sketch22.addConstraint(Sketcher.Constraint("Coincident", 0, 2, 1, 1))
sketch22.addConstraint(Sketcher.Constraint("Coincident", 1, 2, 2, 1))
sketch22.addConstraint(Sketcher.Constraint("Coincident", 2, 2, 3, 1))
sketch22.addConstraint(Sketcher.Constraint("Coincident", 3, 2, 0, 1))
sketch22.addConstraint(Sketcher.Constraint("Horizontal", 0))
sketch22.addConstraint(Sketcher.Constraint("Vertical", 1))
sketch22.addConstraint(Sketcher.Constraint("Vertical", 3))
sketch22.addConstraint(Sketcher.Constraint("Symmetric", 0, 2, 3, 2, -1, 1))
sketch22.addConstraint(Sketcher.Constraint("PointOnObject", 2, 3, -2))
sketch22.addConstraint(Sketcher.Constraint("Radius", 2, Q("5 mm")))
sketch22.addConstraint(Sketcher.Constraint("DistanceX", 0, 2, 0, 1, Q("6 mm")))
sketch22.addConstraint(Sketcher.Constraint("DistanceY", 1, 2, 1, 1, Q("8 mm")))
pad1 = doc.addObject("PartDesign::Pad", "Pad")
body2.addObject(pad1)
pad1.Profile = sketch22
pad1.Length = 12
pad1.Midplane = True
body3 = doc.addObject("PartDesign::Body", "Body002")

sketch23 = doc.addObject("Sketcher::SketchObject", "Sketch022")
body3.addObject(sketch23)
sketch23.AttachmentSupport = (doc.getObject("XY_Plane002"), [""])
sketch23.MapMode = "FlatFace"
sketch23.addGeometry(Part.LineSegment(App.Vector(-45, 129, 0), App.Vector(-40, 132, 0)), False)
sketch23.addGeometry(Part.LineSegment(App.Vector(-40, 132, 0), App.Vector(-45, 139, 0)), False)
sketch23.addGeometry(Part.ArcOfCircle(Part.Circle(App.Vector(-49, 140, 0), App.Vector(0, 0, 1), 5), math.radians(-17), math.radians(269)), False)
sketch23.addGeometry(Part.LineSegment(App.Vector(-50, 135, 0), App.Vector(-45, 129, 0)), False)
sketch23.addConstraint(Sketcher.Constraint("Coincident", 0, 2, 1, 1))
sketch23.addConstraint(Sketcher.Constraint("Coincident", 1, 2, 2, 1))
sketch23.addConstraint(Sketcher.Constraint("Coincident", 2, 2, 3, 1))
sketch23.addConstraint(Sketcher.Constraint("Coincident", 3, 2, 0, 1))
sketch23.addConstraint(Sketcher.Constraint("Perpendicular", 0, 1))
sketch23.addConstraint(Sketcher.Constraint("Parallel", 1, 3))
sketch23.addConstraint(Sketcher.Constraint("Equal", 1, 3))
sketch23.addConstraint(Sketcher.Constraint("Radius", 2, Q("5 mm")))
sketch23.addConstraint(Sketcher.Constraint("Angle", 0, Q("36.000004 deg")))
sketch23.addConstraint(Sketcher.Constraint("Distance", 0, Q("6 mm")))
sketch23.addConstraint(Sketcher.Constraint("Distance", 1, Q("8 mm")))
sketch23.addConstraint(Sketcher.Constraint("DistanceX", 2, 3, -1, 1, Q("49.45165 mm")))
sketch23.addConstraint(Sketcher.Constraint("DistanceY", -1, 1, 2, 3, Q("140.19653 mm")))
pad2 = doc.addObject("PartDesign::Pad", "Pad001")
body3.addObject(pad2)
pad2.Profile = sketch23
pad2.Length = 12
pad2.Midplane = True

doc.recompute()
